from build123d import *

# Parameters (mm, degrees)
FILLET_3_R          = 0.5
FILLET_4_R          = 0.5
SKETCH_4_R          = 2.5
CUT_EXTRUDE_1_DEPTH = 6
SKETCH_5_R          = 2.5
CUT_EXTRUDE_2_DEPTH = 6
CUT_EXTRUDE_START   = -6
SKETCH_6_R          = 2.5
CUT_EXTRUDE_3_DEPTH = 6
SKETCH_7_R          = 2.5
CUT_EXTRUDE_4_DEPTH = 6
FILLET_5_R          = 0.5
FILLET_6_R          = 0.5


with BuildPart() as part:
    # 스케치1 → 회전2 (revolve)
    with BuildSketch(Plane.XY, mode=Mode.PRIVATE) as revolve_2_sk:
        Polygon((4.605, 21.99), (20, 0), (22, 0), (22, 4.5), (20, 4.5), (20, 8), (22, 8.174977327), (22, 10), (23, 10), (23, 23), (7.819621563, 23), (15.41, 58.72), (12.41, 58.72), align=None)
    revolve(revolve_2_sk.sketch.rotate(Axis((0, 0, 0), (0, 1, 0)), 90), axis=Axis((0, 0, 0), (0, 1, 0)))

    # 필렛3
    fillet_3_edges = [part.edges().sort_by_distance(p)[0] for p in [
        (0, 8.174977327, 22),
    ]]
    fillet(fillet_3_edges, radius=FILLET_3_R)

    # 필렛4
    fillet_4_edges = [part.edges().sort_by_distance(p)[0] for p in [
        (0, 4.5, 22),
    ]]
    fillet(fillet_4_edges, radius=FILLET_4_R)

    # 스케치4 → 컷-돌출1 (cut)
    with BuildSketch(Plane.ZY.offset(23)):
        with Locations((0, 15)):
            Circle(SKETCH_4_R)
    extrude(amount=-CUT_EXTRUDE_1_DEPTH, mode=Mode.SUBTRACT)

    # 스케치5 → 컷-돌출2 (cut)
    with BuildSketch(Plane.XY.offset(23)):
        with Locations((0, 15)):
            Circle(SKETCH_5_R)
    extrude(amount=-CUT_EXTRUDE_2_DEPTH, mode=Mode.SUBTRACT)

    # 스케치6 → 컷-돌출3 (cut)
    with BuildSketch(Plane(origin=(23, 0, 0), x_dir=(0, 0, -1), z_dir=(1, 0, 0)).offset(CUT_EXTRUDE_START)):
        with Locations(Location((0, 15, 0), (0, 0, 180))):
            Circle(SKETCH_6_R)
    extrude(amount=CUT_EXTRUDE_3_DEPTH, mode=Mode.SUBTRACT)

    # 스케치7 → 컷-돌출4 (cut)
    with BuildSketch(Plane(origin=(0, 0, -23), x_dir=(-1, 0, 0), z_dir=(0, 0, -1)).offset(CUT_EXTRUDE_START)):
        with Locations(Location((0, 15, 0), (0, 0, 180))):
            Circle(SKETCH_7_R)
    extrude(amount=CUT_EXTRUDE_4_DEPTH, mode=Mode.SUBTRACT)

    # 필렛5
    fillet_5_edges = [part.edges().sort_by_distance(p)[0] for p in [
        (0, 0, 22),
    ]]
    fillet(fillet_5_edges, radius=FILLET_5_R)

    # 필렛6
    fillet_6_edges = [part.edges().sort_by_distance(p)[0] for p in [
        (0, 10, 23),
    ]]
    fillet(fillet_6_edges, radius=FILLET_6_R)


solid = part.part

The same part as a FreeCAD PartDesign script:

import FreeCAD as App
import Part
import Sketcher
from FreeCAD import Vector
Q = App.Units.Quantity


def edges_at(feature, points):
    """Names of the edges that pass closest to the given points."""
    edges = feature.Shape.Edges
    near = lambda p: min(range(len(edges)), key=lambda i: edges[i].distToShape(Part.Vertex(*p))[0])
    return sorted({f"Edge{near(p) + 1}" for p in points})

doc = App.newDocument("Part")
body = doc.addObject("PartDesign::Body", "Body")

sketch1 = body.newObject("Sketcher::SketchObject", "Sketch")
sketch1.AttachmentSupport = (doc.getObject("XY_Plane"), [""])
sketch1.MapMode = "FlatFace"
sketch1.addGeometry([
    Part.LineSegment(Vector(4.6, 22, 0), Vector(20, 0, 0)),
    Part.LineSegment(Vector(20, 0, 0), Vector(22, 0, 0)),
    Part.LineSegment(Vector(22, 0, 0), Vector(22, 4.5, 0)),
    Part.LineSegment(Vector(22, 4.5, 0), Vector(20, 4.5, 0)),
    Part.LineSegment(Vector(20, 4.5, 0), Vector(20, 8, 0)),
    Part.LineSegment(Vector(20, 8, 0), Vector(22, 8.2, 0)),
    Part.LineSegment(Vector(22, 8.2, 0), Vector(22, 10, 0)),
    Part.LineSegment(Vector(22, 10, 0), Vector(23, 10, 0)),
    Part.LineSegment(Vector(23, 10, 0), Vector(23, 23, 0)),
    Part.LineSegment(Vector(23, 23, 0), Vector(7.8, 23, 0)),
    Part.LineSegment(Vector(7.8, 23, 0), Vector(15.4, 58.7, 0)),
    Part.LineSegment(Vector(15.4, 58.7, 0), Vector(12.4, 58.7, 0)),
    Part.LineSegment(Vector(12.4, 58.7, 0), Vector(4.6, 22, 0)),
], False)
sketch1.addConstraint([
    Sketcher.Constraint("Coincident", 0, 2, 1, 1),
    Sketcher.Constraint("Coincident", 1, 2, 2, 1),
    Sketcher.Constraint("Coincident", 2, 2, 3, 1),
    Sketcher.Constraint("Coincident", 3, 2, 4, 1),
    Sketcher.Constraint("Coincident", 4, 2, 5, 1),
    Sketcher.Constraint("Coincident", 5, 2, 6, 1),
    Sketcher.Constraint("Coincident", 6, 2, 7, 1),
    Sketcher.Constraint("Coincident", 7, 2, 8, 1),
    Sketcher.Constraint("Coincident", 8, 2, 9, 1),
    Sketcher.Constraint("Coincident", 9, 2, 10, 1),
    Sketcher.Constraint("Coincident", 10, 2, 11, 1),
    Sketcher.Constraint("Coincident", 11, 2, 12, 1),
    Sketcher.Constraint("Coincident", 12, 2, 0, 1),
    Sketcher.Constraint("Horizontal", 1),
    Sketcher.Constraint("Vertical", 2),
    Sketcher.Constraint("Horizontal", 3),
    Sketcher.Constraint("Vertical", 4),
    Sketcher.Constraint("Vertical", 6),
    Sketcher.Constraint("Horizontal", 7),
    Sketcher.Constraint("Vertical", 8),
    Sketcher.Constraint("Horizontal", 9),
    Sketcher.Constraint("Horizontal", 11),
    Sketcher.Constraint("PointOnObject", 0, 2, -1),
    Sketcher.Constraint("Parallel", 10, 12),
    Sketcher.Constraint("Vertical", 0, 2, 3, 2),
    Sketcher.Constraint("Vertical", 2, 2, 5, 2),
    Sketcher.Constraint("DistanceX", 1, 1, 1, 2, Q("2 mm")),
    Sketcher.Constraint("DistanceX", 7, 1, 7, 2, Q("1 mm")),
    Sketcher.Constraint("DistanceX", 11, 2, 11, 1, Q("3 mm")),
    Sketcher.Constraint("DistanceY", 8, 1, 8, 2, Q("13 mm")),
    Sketcher.Constraint("Angle", 5, Q("5 deg")),
    Sketcher.Constraint("DistanceY", 2, 1, 2, 2, Q("4.5 mm")),
    Sketcher.Constraint("DistanceY", 4, 1, 4, 2, Q("3.5 mm")),
    Sketcher.Constraint("DistanceX", -1, 1, 0, 2, Q("20 mm")),
    Sketcher.Constraint("DistanceY", -1, 1, 6, 2, Q("10 mm")),
    Sketcher.Constraint("DistanceX", -1, 1, 10, 2, Q("15.41 mm")),
    Sketcher.Constraint("DistanceY", -1, 1, 10, 2, Q("58.72 mm")),
    Sketcher.Constraint("DistanceY", -1, 1, 12, 2, Q("21.99 mm")),
    Sketcher.Constraint("DistanceX", -1, 1, 12, 2, Q("4.605 mm")),
])
revolution = body.newObject("PartDesign::Revolution", "Revolution")
revolution.Profile = sketch1
revolution.ReferenceAxis = (sketch1, ["V_Axis"])
revolution.Angle = 360
doc.recompute()

fillet = body.newObject("PartDesign::Fillet", "Fillet")
fillet.Base = (revolution, edges_at(revolution, [(0, 8.175, 22)]))
fillet.Radius = 0.5
doc.recompute()

fillet2 = body.newObject("PartDesign::Fillet", "Fillet001")
fillet2.Base = (fillet, edges_at(fillet, [(0, 4.5, 22)]))
fillet2.Radius = 0.5

sketch2 = body.newObject("Sketcher::SketchObject", "Sketch001")
sketch2.AttachmentSupport = (doc.getObject("YZ_Plane"), [""])
sketch2.MapMode = "FlatFace"
sketch2.AttachmentOffset = App.Placement(Vector(0, 0, -23), App.Rotation())
sketch2.addGeometry(Part.Circle(Vector(15, 0, 0), Vector(0, 0, 1), 2.5), False)
sketch2.addConstraint([
    Sketcher.Constraint("PointOnObject", 0, 3, -1),
    Sketcher.Constraint("Diameter", 0, Q("5 mm")),
    Sketcher.Constraint("DistanceX", -1, 1, 0, 3, Q("15 mm")),
])
pocket1 = body.newObject("PartDesign::Pocket", "Pocket")
pocket1.Profile = sketch2
pocket1.Length = 6
pocket1.Reversed = True

sketch3 = body.newObject("Sketcher::SketchObject", "Sketch002")
sketch3.AttachmentSupport = (doc.getObject("XY_Plane"), [""])
sketch3.MapMode = "FlatFace"
sketch3.AttachmentOffset = App.Placement(Vector(0, 0, 23), App.Rotation())
sketch3.addGeometry(Part.Circle(Vector(0, 15, 0), Vector(0, 0, 1), 2.5), False)
sketch3.addConstraint([
    Sketcher.Constraint("PointOnObject", 0, 3, -2),
    Sketcher.Constraint("Diameter", 0, Q("5 mm")),
    Sketcher.Constraint("DistanceY", -1, 1, 0, 3, Q("15 mm")),
])
pocket2 = body.newObject("PartDesign::Pocket", "Pocket001")
pocket2.Profile = sketch3
pocket2.Length = 6

sketch4 = body.newObject("Sketcher::SketchObject", "Sketch003")
sketch4.AttachmentSupport = (doc.getObject("YZ_Plane"), [""])
sketch4.MapMode = "FlatFace"
sketch4.AttachmentOffset = App.Placement(Vector(0, 0, 17), App.Rotation())
sketch4.addGeometry(Part.Circle(Vector(15, 0, 0), Vector(0, 0, 1), 2.5), False)
sketch4.addConstraint([
    Sketcher.Constraint("PointOnObject", 0, 3, -1),
    Sketcher.Constraint("Diameter", 0, Q("5 mm")),
    Sketcher.Constraint("DistanceX", -1, 1, 0, 3, Q("15 mm")),
])
pocket3 = body.newObject("PartDesign::Pocket", "Pocket002")
pocket3.Profile = sketch4
pocket3.Length = 6
pocket3.Reversed = True

sketch5 = body.newObject("Sketcher::SketchObject", "Sketch004")
sketch5.AttachmentSupport = (doc.getObject("XY_Plane"), [""])
sketch5.MapMode = "FlatFace"
sketch5.AttachmentOffset = App.Placement(Vector(0, 0, -17), App.Rotation())
sketch5.addGeometry(Part.Circle(Vector(0, 15, 0), Vector(0, 0, 1), 2.5), False)
sketch5.addConstraint([
    Sketcher.Constraint("PointOnObject", 0, 3, -2),
    Sketcher.Constraint("Diameter", 0, Q("5 mm")),
    Sketcher.Constraint("DistanceY", -1, 1, 0, 3, Q("15 mm")),
])
pocket4 = body.newObject("PartDesign::Pocket", "Pocket003")
pocket4.Profile = sketch5
pocket4.Length = 6
doc.recompute()

fillet3 = body.newObject("PartDesign::Fillet", "Fillet002")
fillet3.Base = (pocket4, edges_at(pocket4, [(0, 0, 22)]))
fillet3.Radius = 0.5
doc.recompute()

fillet4 = body.newObject("PartDesign::Fillet", "Fillet003")
fillet4.Base = (fillet3, edges_at(fillet3, [(0, 10, 23)]))
fillet4.Radius = 0.5

doc.recompute()
